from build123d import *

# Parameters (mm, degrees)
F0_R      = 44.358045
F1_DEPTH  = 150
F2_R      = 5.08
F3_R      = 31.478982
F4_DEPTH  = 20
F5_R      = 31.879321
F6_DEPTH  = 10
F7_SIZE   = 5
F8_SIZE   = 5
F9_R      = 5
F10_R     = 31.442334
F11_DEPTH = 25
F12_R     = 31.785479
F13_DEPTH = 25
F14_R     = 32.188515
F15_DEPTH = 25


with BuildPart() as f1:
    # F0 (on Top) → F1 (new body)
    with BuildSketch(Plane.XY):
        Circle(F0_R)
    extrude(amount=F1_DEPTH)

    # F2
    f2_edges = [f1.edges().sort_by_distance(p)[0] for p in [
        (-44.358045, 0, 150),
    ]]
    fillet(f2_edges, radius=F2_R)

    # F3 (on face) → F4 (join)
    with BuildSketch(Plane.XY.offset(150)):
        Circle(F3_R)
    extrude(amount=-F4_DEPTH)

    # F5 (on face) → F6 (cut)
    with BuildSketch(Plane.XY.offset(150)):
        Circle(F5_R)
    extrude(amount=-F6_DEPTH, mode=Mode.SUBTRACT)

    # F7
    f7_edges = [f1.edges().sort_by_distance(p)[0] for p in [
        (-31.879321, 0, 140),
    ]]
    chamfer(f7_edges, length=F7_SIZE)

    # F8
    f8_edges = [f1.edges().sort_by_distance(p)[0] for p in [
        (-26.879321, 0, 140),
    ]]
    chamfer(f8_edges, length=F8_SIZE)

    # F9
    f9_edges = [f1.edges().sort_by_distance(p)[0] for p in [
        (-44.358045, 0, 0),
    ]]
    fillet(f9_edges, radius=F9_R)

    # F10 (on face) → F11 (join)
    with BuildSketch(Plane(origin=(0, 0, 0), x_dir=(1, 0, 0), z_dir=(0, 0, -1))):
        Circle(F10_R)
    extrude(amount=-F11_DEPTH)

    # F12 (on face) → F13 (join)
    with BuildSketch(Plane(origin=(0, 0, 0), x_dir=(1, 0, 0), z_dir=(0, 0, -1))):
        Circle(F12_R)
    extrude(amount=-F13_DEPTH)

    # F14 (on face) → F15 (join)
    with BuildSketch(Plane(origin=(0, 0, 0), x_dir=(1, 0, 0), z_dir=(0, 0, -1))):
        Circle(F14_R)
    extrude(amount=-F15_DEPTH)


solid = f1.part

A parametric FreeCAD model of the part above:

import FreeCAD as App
import Part
import Sketcher
Q = App.Units.Quantity


def edges_at(feature, points):
    """Names of the edges that pass closest to the given points."""
    edges = feature.Shape.Edges
    near = lambda p: min(range(len(edges)), key=lambda i: edges[i].distToShape(Part.Vertex(*p))[0])
    return sorted({f"Edge{near(p) + 1}" for p in points})

doc = App.newDocument("Part")
params = doc.addObject("Spreadsheet::Sheet", "Params")
for row, (alias, value) in enumerate([
    ("pad1_length", "150 mm"),
    ("fillet_radius", "5.08 mm"),
    ("pad2_length", "20 mm"),
    ("pocket1_length", "10 mm"),
    ("chamfer_size", "5 mm"),
    ("chamfer2_size", "5 mm"),
    ("fillet2_radius", "5 mm"),
    ("pad3_length", "25 mm"),
    ("pad4_length", "25 mm"),
    ("pad5_length", "25 mm"),
], start=1):
    params.set(f"A{row}", alias)
    params.set(f"B{row}", "=" + value)
    params.setAlias(f"B{row}", alias)

body = doc.addObject("PartDesign::Body", "Body")

sketch1 = doc.addObject("Sketcher::SketchObject", "Sketch")
body.addObject(sketch1)
sketch1.AttachmentSupport = (doc.XY_Plane, [""])
sketch1.MapMode = "FlatFace"
sketch1.addGeometry(Part.Circle(App.Vector(0, 0, 0), App.Vector(0, 0, 1), 44.358045), False)
sketch1.addConstraint([
    Sketcher.Constraint("Coincident", 0, 3, -1, 1),
    Sketcher.Constraint("Diameter", 0, Q("88.71609 mm")),
])
pad1 = doc.addObject("PartDesign::Pad", "Pad")
body.addObject(pad1)
pad1.Profile = sketch1
pad1.setExpression("Length", "Params.pad1_length")
doc.recompute()

fillet = doc.addObject("PartDesign::Fillet", "Fillet")
body.addObject(fillet)
fillet.Base = (pad1, edges_at(pad1, [(-44.358, 0, 150)]))
fillet.setExpression("Radius", "Params.fillet_radius")

sketch2 = doc.addObject("Sketcher::SketchObject", "Sketch001")
body.addObject(sketch2)
sketch2.AttachmentSupport = (doc.XY_Plane, [""])
sketch2.MapMode = "FlatFace"
sketch2.AttachmentOffset = App.Placement(App.Vector(0, 0, 150), App.Rotation())
sketch2.addGeometry(Part.Circle(App.Vector(0, 0, 0), App.Vector(0, 0, 1), 31.478982), False)
sketch2.addConstraint([
    Sketcher.Constraint("Coincident", 0, 3, -1, 1),
    Sketcher.Constraint("Diameter", 0, Q("62.957964 mm")),
])
pad2 = doc.addObject("PartDesign::Pad", "Pad001")
body.addObject(pad2)
pad2.Profile = sketch2
pad2.setExpression("Length", "Params.pad2_length")
pad2.Reversed = True

sketch3 = doc.addObject("Sketcher::SketchObject", "Sketch002")
body.addObject(sketch3)
sketch3.AttachmentSupport = (doc.XY_Plane, [""])
sketch3.MapMode = "FlatFace"
sketch3.AttachmentOffset = App.Placement(App.Vector(0, 0, 150), App.Rotation())
sketch3.addGeometry(Part.Circle(App.Vector(0, 0, 0), App.Vector(0, 0, 1), 31.879321), False)
sketch3.addConstraint([
    Sketcher.Constraint("Coincident", 0, 3, -1, 1),
    Sketcher.Constraint("Diameter", 0, Q("63.758642 mm")),
])
pocket1 = doc.addObject("PartDesign::Pocket", "Pocket")
body.addObject(pocket1)
pocket1.Profile = sketch3
pocket1.setExpression("Length", "Params.pocket1_length")
doc.recompute()

chamfer = doc.addObject("PartDesign::Chamfer", "Chamfer")
body.addObject(chamfer)
chamfer.Base = (pocket1, edges_at(pocket1, [(-31.879, 0, 140)]))
chamfer.setExpression("Size", "Params.chamfer_size")
doc.recompute()

chamfer2 = doc.addObject("PartDesign::Chamfer", "Chamfer001")
body.addObject(chamfer2)
chamfer2.Base = (chamfer, edges_at(chamfer, [(-26.879, 0, 140)]))
chamfer2.setExpression("Size", "Params.chamfer2_size")
doc.recompute()

fillet2 = doc.addObject("PartDesign::Fillet", "Fillet001")
body.addObject(fillet2)
fillet2.Base = (chamfer2, edges_at(chamfer2, [(-44.358, 0, 0)]))
fillet2.setExpression("Radius", "Params.fillet2_radius")

sketch4 = doc.addObject("Sketcher::SketchObject", "Sketch003")
body.addObject(sketch4)
sketch4.AttachmentSupport = (doc.XY_Plane, [""])
sketch4.MapMode = "FlatFace"
sketch4.addGeometry(Part.Circle(App.Vector(0, 0, 0), App.Vector(0, 0, 1), 31.442334), False)
sketch4.addConstraint([
    Sketcher.Constraint("Coincident", 0, 3, -1, 1),
    Sketcher.Constraint("Diameter", 0, Q("62.884668 mm")),
])
pad3 = doc.addObject("PartDesign::Pad", "Pad002")
body.addObject(pad3)
pad3.Profile = sketch4
pad3.setExpression("Length", "Params.pad3_length")

sketch5 = doc.addObject("Sketcher::SketchObject", "Sketch004")
body.addObject(sketch5)
sketch5.AttachmentSupport = (doc.XY_Plane, [""])
sketch5.MapMode = "FlatFace"
sketch5.addGeometry(Part.Circle(App.Vector(0, 0, 0), App.Vector(0, 0, 1), 31.785479), False)
sketch5.addConstraint([
    Sketcher.Constraint("Coincident", 0, 3, -1, 1),
    Sketcher.Constraint("Diameter", 0, Q("63.570958 mm")),
])
pad4 = doc.addObject("PartDesign::Pad", "Pad003")
body.addObject(pad4)
pad4.Profile = sketch5
pad4.setExpression("Length", "Params.pad4_length")

sketch6 = doc.addObject("Sketcher::SketchObject", "Sketch005")
body.addObject(sketch6)
sketch6.AttachmentSupport = (doc.XY_Plane, [""])
sketch6.MapMode = "FlatFace"
sketch6.addGeometry(Part.Circle(App.Vector(0, 0, 0), App.Vector(0, 0, 1), 32.188515), False)
sketch6.addConstraint([
    Sketcher.Constraint("Coincident", 0, 3, -1, 1),
    Sketcher.Constraint("Diameter", 0, Q("64.37703 mm")),
])
pad5 = doc.addObject("PartDesign::Pad", "Pad004")
body.addObject(pad5)
pad5.Profile = sketch6
pad5.setExpression("Length", "Params.pad5_length")

doc.recompute()
